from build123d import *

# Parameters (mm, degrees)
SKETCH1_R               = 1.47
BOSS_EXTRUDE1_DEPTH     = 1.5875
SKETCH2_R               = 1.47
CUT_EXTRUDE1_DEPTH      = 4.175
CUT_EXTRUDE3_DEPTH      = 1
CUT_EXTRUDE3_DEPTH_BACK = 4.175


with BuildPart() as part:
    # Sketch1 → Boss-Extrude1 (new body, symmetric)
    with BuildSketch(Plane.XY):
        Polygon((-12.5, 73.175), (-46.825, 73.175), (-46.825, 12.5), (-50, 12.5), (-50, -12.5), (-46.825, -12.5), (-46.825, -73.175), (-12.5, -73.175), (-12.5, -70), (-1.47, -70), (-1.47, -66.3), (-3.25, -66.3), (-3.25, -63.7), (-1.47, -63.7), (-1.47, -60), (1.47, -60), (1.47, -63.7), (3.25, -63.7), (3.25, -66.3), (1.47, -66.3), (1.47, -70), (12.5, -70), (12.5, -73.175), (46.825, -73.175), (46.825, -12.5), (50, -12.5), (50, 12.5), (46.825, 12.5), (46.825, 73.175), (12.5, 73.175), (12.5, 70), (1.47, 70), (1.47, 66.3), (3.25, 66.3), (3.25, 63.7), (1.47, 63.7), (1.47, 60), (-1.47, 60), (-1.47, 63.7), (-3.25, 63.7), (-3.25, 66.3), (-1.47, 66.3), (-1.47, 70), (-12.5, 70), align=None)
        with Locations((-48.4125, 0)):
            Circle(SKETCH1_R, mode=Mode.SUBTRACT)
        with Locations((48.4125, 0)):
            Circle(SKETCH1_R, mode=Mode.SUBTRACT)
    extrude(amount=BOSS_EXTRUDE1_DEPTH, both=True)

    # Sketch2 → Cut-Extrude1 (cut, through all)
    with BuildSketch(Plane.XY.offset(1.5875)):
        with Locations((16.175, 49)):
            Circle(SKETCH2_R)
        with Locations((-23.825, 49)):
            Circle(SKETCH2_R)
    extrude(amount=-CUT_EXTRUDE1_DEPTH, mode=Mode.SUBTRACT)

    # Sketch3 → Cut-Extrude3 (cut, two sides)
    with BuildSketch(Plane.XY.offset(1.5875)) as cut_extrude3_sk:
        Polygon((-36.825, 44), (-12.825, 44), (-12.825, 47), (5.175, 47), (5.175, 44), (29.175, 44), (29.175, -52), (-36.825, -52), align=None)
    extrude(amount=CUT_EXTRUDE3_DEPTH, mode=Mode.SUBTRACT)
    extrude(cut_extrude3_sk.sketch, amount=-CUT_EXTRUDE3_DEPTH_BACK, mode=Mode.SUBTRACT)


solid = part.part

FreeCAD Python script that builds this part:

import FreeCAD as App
import Part
import Sketcher

V = App.Vector

doc = App.newDocument("Part")
body = doc.addObject("PartDesign::Body", "Body")

# Sketch on XY plane
sketch1 = body.newObject("Sketcher::SketchObject", "Sketch")
sketch1.AttachmentSupport = (doc.getObject("XY_Plane"), [""])
sketch1.MapMode = "FlatFace"
sketch1.addGeometry(Part.LineSegment(V(-12.5, 73.2, 0), V(-46.8, 73.2, 0)), False)
sketch1.addGeometry(Part.LineSegment(V(-46.8, 73.2, 0), V(-46.8, 12.5, 0)), False)
sketch1.addGeometry(Part.LineSegment(V(-46.8, 12.5, 0), V(-50, 12.5, 0)), False)
sketch1.addGeometry(Part.LineSegment(V(-50, 12.5, 0), V(-50, -12.5, 0)), False)
sketch1.addGeometry(Part.LineSegment(V(-50, -12.5, 0), V(-46.8, -12.5, 0)), False)
sketch1.addGeometry(Part.LineSegment(V(-46.8, -12.5, 0), V(-46.8, -73.2, 0)), False)
sketch1.addGeometry(Part.LineSegment(V(-46.8, -73.2, 0), V(-12.5, -73.2, 0)), False)
sketch1.addGeometry(Part.LineSegment(V(-12.5, -73.2, 0), V(-12.5, -70, 0)), False)
sketch1.addGeometry(Part.LineSegment(V(-12.5, -70, 0), V(-1.5, -70, 0)), False)
sketch1.addGeometry(Part.LineSegment(V(-1.5, -70, 0), V(-1.5, -66.3, 0)), False)
sketch1.addGeometry(Part.LineSegment(V(-1.5, -66.3, 0), V(-3.2, -66.3, 0)), False)
sketch1.addGeometry(Part.LineSegment(V(-3.2, -66.3, 0), V(-3.2, -63.7, 0)), False)
sketch1.addGeometry(Part.LineSegment(V(-3.2, -63.7, 0), V(-1.5, -63.7, 0)), False)
sketch1.addGeometry(Part.LineSegment(V(-1.5, -63.7, 0), V(-1.5, -60, 0)), False)
sketch1.addGeometry(Part.LineSegment(V(-1.5, -60, 0), V(1.5, -60, 0)), False)
sketch1.addGeometry(Part.LineSegment(V(1.5, -60, 0), V(1.5, -63.7, 0)), False)
sketch1.addGeometry(Part.LineSegment(V(1.5, -63.7, 0), V(3.2, -63.7, 0)), False)
sketch1.addGeometry(Part.LineSegment(V(3.2, -63.7, 0), V(3.2, -66.3, 0)), False)
sketch1.addGeometry(Part.LineSegment(V(3.2, -66.3, 0), V(1.5, -66.3, 0)), False)
sketch1.addGeometry(Part.LineSegment(V(1.5, -66.3, 0), V(1.5, -70, 0)), False)
sketch1.addGeometry(Part.LineSegment(V(1.5, -70, 0), V(12.5, -70, 0)), False)
sketch1.addGeometry(Part.LineSegment(V(12.5, -70, 0), V(12.5, -73.2, 0)), False)
sketch1.addGeometry(Part.LineSegment(V(12.5, -73.2, 0), V(46.8, -73.2, 0)), False)
sketch1.addGeometry(Part.LineSegment(V(46.8, -73.2, 0), V(46.8, -12.5, 0)), False)
sketch1.addGeometry(Part.LineSegment(V(46.8, -12.5, 0), V(50, -12.5, 0)), False)
sketch1.addGeometry(Part.LineSegment(V(50, -12.5, 0), V(50, 12.5, 0)), False)
sketch1.addGeometry(Part.LineSegment(V(50, 12.5, 0), V(46.8, 12.5, 0)), False)
sketch1.addGeometry(Part.LineSegment(V(46.8, 12.5, 0), V(46.8, 73.2, 0)), False)
sketch1.addGeometry(Part.LineSegment(V(46.8, 73.2, 0), V(12.5, 73.2, 0)), False)
sketch1.addGeometry(Part.LineSegment(V(12.5, 73.2, 0), V(12.5, 70, 0)), False)
sketch1.addGeometry(Part.LineSegment(V(12.5, 70, 0), V(1.5, 70, 0)), False)
sketch1.addGeometry(Part.LineSegment(V(1.5, 70, 0), V(1.5, 66.3, 0)), False)
sketch1.addGeometry(Part.LineSegment(V(1.5, 66.3, 0), V(3.2, 66.3, 0)), False)
sketch1.addGeometry(Part.LineSegment(V(3.2, 66.3, 0), V(3.2, 63.7, 0)), False)
sketch1.addGeometry(Part.LineSegment(V(3.2, 63.7, 0), V(1.5, 63.7, 0)), False)
sketch1.addGeometry(Part.LineSegment(V(1.5, 63.7, 0), V(1.5, 60, 0)), False)
sketch1.addGeometry(Part.LineSegment(V(1.5, 60, 0), V(-1.5, 60, 0)), False)
sketch1.addGeometry(Part.LineSegment(V(-1.5, 60, 0), V(-1.5, 63.7, 0)), False)
sketch1.addGeometry(Part.LineSegment(V(-1.5, 63.7, 0), V(-3.2, 63.7, 0)), False)
sketch1.addGeometry(Part.LineSegment(V(-3.2, 63.7, 0), V(-3.2, 66.3, 0)), False)
sketch1.addGeometry(Part.LineSegment(V(-3.2, 66.3, 0), V(-1.5, 66.3, 0)), False)
sketch1.addGeometry(Part.LineSegment(V(-1.5, 66.3, 0), V(-1.5, 70, 0)), False)
sketch1.addGeometry(Part.LineSegment(V(-1.5, 70, 0), V(-12.5, 70, 0)), False)
sketch1.addGeometry(Part.LineSegment(V(-12.5, 70, 0), V(-12.5, 73.2, 0)), False)
sketch1.addGeometry(Part.Circle(V(-48.4, 0, 0), V(0, 0, 1), 1.5), False)
sketch1.addGeometry(Part.Circle(V(48.4, 0, 0), V(0, 0, 1), 1.5), False)
sketch1.addConstraint(Sketcher.Constraint("Coincident", 0, 2, 1, 1))
sketch1.addConstraint(Sketcher.Constraint("Coincident", 1, 2, 2, 1))
sketch1.addConstraint(Sketcher.Constraint("Coincident", 2, 2, 3, 1))
sketch1.addConstraint(Sketcher.Constraint("Coincident", 3, 2, 4, 1))
sketch1.addConstraint(Sketcher.Constraint("Coincident", 4, 2, 5, 1))
sketch1.addConstraint(Sketcher.Constraint("Coincident", 5, 2, 6, 1))
sketch1.addConstraint(Sketcher.Constraint("Coincident", 6, 2, 7, 1))
sketch1.addConstraint(Sketcher.Constraint("Coincident", 7, 2, 8, 1))
sketch1.addConstraint(Sketcher.Constraint("Coincident", 8, 2, 9, 1))
sketch1.addConstraint(Sketcher.Constraint("Coincident", 9, 2, 10, 1))
sketch1.addConstraint(Sketcher.Constraint("Coincident", 10, 2, 11, 1))
sketch1.addConstraint(Sketcher.Constraint("Coincident", 11, 2, 12, 1))
sketch1.addConstraint(Sketcher.Constraint("Coincident", 12, 2, 13, 1))
sketch1.addConstraint(Sketcher.Constraint("Coincident", 13, 2, 14, 1))
sketch1.addConstraint(Sketcher.Constraint("Coincident", 14, 2, 15, 1))
sketch1.addConstraint(Sketcher.Constraint("Coincident", 15, 2, 16, 1))
sketch1.addConstraint(Sketcher.Constraint("Coincident", 16, 2, 17, 1))
sketch1.addConstraint(Sketcher.Constraint("Coincident", 17, 2, 18, 1))
sketch1.addConstraint(Sketcher.Constraint("Coincident", 18, 2, 19, 1))
sketch1.addConstraint(Sketcher.Constraint("Coincident", 19, 2, 20, 1))
sketch1.addConstraint(Sketcher.Constraint("Coincident", 20, 2, 21, 1))
sketch1.addConstraint(Sketcher.Constraint("Coincident", 21, 2, 22, 1))
sketch1.addConstraint(Sketcher.Constraint("Coincident", 22, 2, 23, 1))
sketch1.addConstraint(Sketcher.Constraint("Coincident", 23, 2, 24, 1))
sketch1.addConstraint(Sketcher.Constraint("Coincident", 24, 2, 25, 1))
sketch1.addConstraint(Sketcher.Constraint("Coincident", 25, 2, 26, 1))
sketch1.addConstraint(Sketcher.Constraint("Coincident", 26, 2, 27, 1))
sketch1.addConstraint(Sketcher.Constraint("Coincident", 27, 2, 28, 1))
sketch1.addConstraint(Sketcher.Constraint("Coincident", 28, 2, 29, 1))
sketch1.addConstraint(Sketcher.Constraint("Coincident", 29, 2, 30, 1))
sketch1.addConstraint(Sketcher.Constraint("Coincident", 30, 2, 31, 1))
sketch1.addConstraint(Sketcher.Constraint("Coincident", 31, 2, 32, 1))
sketch1.addConstraint(Sketcher.Constraint("Coincident", 32, 2, 33, 1))
sketch1.addConstraint(Sketcher.Constraint("Coincident", 33, 2, 34, 1))
sketch1.addConstraint(Sketcher.Constraint("Coincident", 34, 2, 35, 1))
sketch1.addConstraint(Sketcher.Constraint("Coincident", 35, 2, 36, 1))
sketch1.addConstraint(Sketcher.Constraint("Coincident", 36, 2, 37, 1))
sketch1.addConstraint(Sketcher.Constraint("Coincident", 37, 2, 38, 1))
sketch1.addConstraint(Sketcher.Constraint("Coincident", 38, 2, 39, 1))
sketch1.addConstraint(Sketcher.Constraint("Coincident", 39, 2, 40, 1))
sketch1.addConstraint(Sketcher.Constraint("Coincident", 40, 2, 41, 1))
sketch1.addConstraint(Sketcher.Constraint("Coincident", 41, 2, 42, 1))
sketch1.addConstraint(Sketcher.Constraint("Coincident", 42, 2, 43, 1))
sketch1.addConstraint(Sketcher.Constraint("Coincident", 43, 2, 0, 1))
sketch1.addConstraint(Sketcher.Constraint("Horizontal", 0))
sketch1.addConstraint(Sketcher.Constraint("Vertical", 1))
sketch1.addConstraint(Sketcher.Constraint("Horizontal", 2))
sketch1.addConstraint(Sketcher.Constraint("Vertical", 3))
sketch1.addConstraint(Sketcher.Constraint("Horizontal", 4))
sketch1.addConstraint(Sketcher.Constraint("Vertical", 5))
sketch1.addConstraint(Sketcher.Constraint("Horizontal", 6))
sketch1.addConstraint(Sketcher.Constraint("Vertical", 7))
sketch1.addConstraint(Sketcher.Constraint("Horizontal", 8))
sketch1.addConstraint(Sketcher.Constraint("Vertical", 9))
sketch1.addConstraint(Sketcher.Constraint("Horizontal", 10))
sketch1.addConstraint(Sketcher.Constraint("Vertical", 11))
sketch1.addConstraint(Sketcher.Constraint("Horizontal", 12))
sketch1.addConstraint(Sketcher.Constraint("Vertical", 13))
sketch1.addConstraint(Sketcher.Constraint("Horizontal", 14))
sketch1.addConstraint(Sketcher.Constraint("Vertical", 15))
sketch1.addConstraint(Sketcher.Constraint("Horizontal", 16))
sketch1.addConstraint(Sketcher.Constraint("Vertical", 17))
sketch1.addConstraint(Sketcher.Constraint("Horizontal", 18))
sketch1.addConstraint(Sketcher.Constraint("Vertical", 19))
sketch1.addConstraint(Sketcher.Constraint("Horizontal", 20))
sketch1.addConstraint(Sketcher.Constraint("Vertical", 21))
sketch1.addConstraint(Sketcher.Constraint("Horizontal", 22))
sketch1.addConstraint(Sketcher.Constraint("Vertical", 23))
sketch1.addConstraint(Sketcher.Constraint("Horizontal", 24))
sketch1.addConstraint(Sketcher.Constraint("Vertical", 25))
sketch1.addConstraint(Sketcher.Constraint("Horizontal", 26))
sketch1.addConstraint(Sketcher.Constraint("Vertical", 27))
sketch1.addConstraint(Sketcher.Constraint("Horizontal", 28))
sketch1.addConstraint(Sketcher.Constraint("Vertical", 29))
sketch1.addConstraint(Sketcher.Constraint("Horizontal", 30))
sketch1.addConstraint(Sketcher.Constraint("Vertical", 31))
sketch1.addConstraint(Sketcher.Constraint("Horizontal", 32))
sketch1.addConstraint(Sketcher.Constraint("Vertical", 33))
sketch1.addConstraint(Sketcher.Constraint("Horizontal", 34))
sketch1.addConstraint(Sketcher.Constraint("Vertical", 35))
sketch1.addConstraint(Sketcher.Constraint("Horizontal", 36))
sketch1.addConstraint(Sketcher.Constraint("Vertical", 37))
sketch1.addConstraint(Sketcher.Constraint("Horizontal", 38))
sketch1.addConstraint(Sketcher.Constraint("Vertical", 39))
sketch1.addConstraint(Sketcher.Constraint("Horizontal", 40))
sketch1.addConstraint(Sketcher.Constraint("Vertical", 41))
sketch1.addConstraint(Sketcher.Constraint("Horizontal", 42))
sketch1.addConstraint(Sketcher.Constraint("Vertical", 43))
sketch1.addConstraint(Sketcher.Constraint("Equal", 44, 45))
sketch1.addConstraint(Sketcher.Constraint("Symmetric", 44, 3, 45, 3, -1, 1))
sketch1.addConstraint(Sketcher.Constraint("Symmetric", 0, 2, 22, 2, -1, 1))
sketch1.addConstraint(Sketcher.Constraint("Symmetric", 2, 2, 24, 2, -1, 1))
sketch1.addConstraint(Sketcher.Constraint("Symmetric", 4, 2, 26, 2, -1, 1))
sketch1.addConstraint(Sketcher.Constraint("Symmetric", 6, 2, 28, 2, -1, 1))
sketch1.addConstraint(Sketcher.Constraint("Symmetric", 8, 2, 30, 2, -1, 1))
sketch1.addConstraint(Sketcher.Constraint("Symmetric", 10, 2, 32, 2, -1, 1))
sketch1.addConstraint(Sketcher.Constraint("Symmetric", 12, 2, 34, 2, -1, 1))
sketch1.addConstraint(Sketcher.Constraint("Symmetric", 14, 2, 36, 2, -1, 1))
sketch1.addConstraint(Sketcher.Constraint("Symmetric", 16, 2, 38, 2, -1, 1))
sketch1.addConstraint(Sketcher.Constraint("Symmetric", 18, 2, 40, 2, -1, 1))
sketch1.addConstraint(Sketcher.Constraint("Symmetric", 20, 2, 42, 2, -1, 1))
sketch1.addConstraint(Sketcher.Constraint("Symmetric", 12, 2, 15, 2, -2))
sketch1.addConstraint(Sketcher.Constraint("Symmetric", 10, 2, 17, 2, -2))
sketch1.addConstraint(Sketcher.Constraint("Symmetric", 8, 2, 19, 2, -2))
sketch1.addConstraint(Sketcher.Constraint("Symmetric", 6, 2, 21, 2, -2))
sketch1.addConstraint(Sketcher.Constraint("Symmetric", 4, 2, 23, 2, -2))
sketch1.addConstraint(Sketcher.Constraint("PointOnObject", 44, 3, -1))
sketch1.addConstraint(Sketcher.Constraint("Vertical", 9, 2, 12, 2))
sketch1.addConstraint(Sketcher.Constraint("Equal", 26, 7))
sketch1.addConstraint(Sketcher.Constraint("Equal", 9, 13))
sketch1.addConstraint(Sketcher.Constraint("Diameter", 44, 2.94))
sketch1.addConstraint(Sketcher.Constraint("DistanceY", 3, 2, 3, 1, 25.0))
sketch1.addConstraint(Sketcher.Constraint("DistanceY", 9, 1, 9, 2, 3.7))
sketch1.addConstraint(Sketcher.Constraint("DistanceY", 11, 1, 11, 2, 2.6))
sketch1.addConstraint(Sketcher.Constraint("DistanceX", 2, 2, -1, 1, 50.0))
sketch1.addConstraint(Sketcher.Constraint("DistanceY", 7, 2, -1, 1, 70.0))
sketch1.addConstraint(Sketcher.Constraint("DistanceX", 8, 1, 8, 2, 11.03))
sketch1.addConstraint(Sketcher.Constraint("DistanceX", 10, 2, 10, 1, 1.78))
sketch1.addConstraint(Sketcher.Constraint("DistanceX", 14, 1, 14, 2, 2.94))
sketch1.addConstraint(Sketcher.Constraint("DistanceX", 0, 2, 0, 1, 34.325))
sketch1.addConstraint(Sketcher.Constraint("DistanceX", 44, 3, 45, 3, 96.825))
pad1 = body.newObject("PartDesign::Pad", "Pad")
pad1.Profile = sketch1
pad1.Length = 3.175
pad1.Midplane = True

# Sketch on XY plane
sketch2 = body.newObject("Sketcher::SketchObject", "Sketch001")
sketch2.AttachmentSupport = (doc.getObject("XY_Plane"), [""])
sketch2.MapMode = "FlatFace"
sketch2.AttachmentOffset = App.Placement(V(0, 0, 1.5875), App.Rotation())
sketch2.addGeometry(Part.Circle(V(16.2, 49, 0), V(0, 0, 1), 1.5), False)
sketch2.addGeometry(Part.Circle(V(-23.8, 49, 0), V(0, 0, 1), 1.5), False)
sketch2.addConstraint(Sketcher.Constraint("Equal", 0, 1))
sketch2.addConstraint(Sketcher.Constraint("Horizontal", 0, 3, 1, 3))
sketch2.addConstraint(Sketcher.Constraint("Diameter", 0, 2.94))
sketch2.addConstraint(Sketcher.Constraint("DistanceY", -1, 1, 0, 3, 49.0))
sketch2.addConstraint(Sketcher.Constraint("DistanceX", 1, 3, 0, 3, 40.0))
sketch2.addConstraint(Sketcher.Constraint("DistanceX", -1, 1, 0, 3, 16.175))
pocket1 = body.newObject("PartDesign::Pocket", "Pocket")
pocket1.Profile = sketch2
pocket1.Type = "ThroughAll"

# Sketch on XY plane
sketch3 = body.newObject("Sketcher::SketchObject", "Sketch002")
sketch3.AttachmentSupport = (doc.getObject("XY_Plane"), [""])
sketch3.MapMode = "FlatFace"
sketch3.AttachmentOffset = App.Placement(V(0, 0, 1.5875), App.Rotation())
sketch3.addGeometry(Part.LineSegment(V(-12.8, 44, 0), V(-36.8, 44, 0)), False)
sketch3.addGeometry(Part.LineSegment(V(-36.8, 44, 0), V(-36.8, -52, 0)), False)
sketch3.addGeometry(Part.LineSegment(V(-36.8, -52, 0), V(29.2, -52, 0)), False)
sketch3.addGeometry(Part.LineSegment(V(29.2, -52, 0), V(29.2, 44, 0)), False)
sketch3.addGeometry(Part.LineSegment(V(29.2, 44, 0), V(5.2, 44, 0)), False)
sketch3.addGeometry(Part.LineSegment(V(5.2, 44, 0), V(5.2, 47, 0)), False)
sketch3.addGeometry(Part.LineSegment(V(5.2, 47, 0), V(-12.8, 47, 0)), False)
sketch3.addGeometry(Part.LineSegment(V(-12.8, 47, 0), V(-12.8, 44, 0)), False)
sketch3.addConstraint(Sketcher.Constraint("Coincident", 0, 2, 1, 1))
sketch3.addConstraint(Sketcher.Constraint("Coincident", 1, 2, 2, 1))
sketch3.addConstraint(Sketcher.Constraint("Coincident", 2, 2, 3, 1))
sketch3.addConstraint(Sketcher.Constraint("Coincident", 3, 2, 4, 1))
sketch3.addConstraint(Sketcher.Constraint("Coincident", 4, 2, 5, 1))
sketch3.addConstraint(Sketcher.Constraint("Coincident", 5, 2, 6, 1))
sketch3.addConstraint(Sketcher.Constraint("Coincident", 6, 2, 7, 1))
sketch3.addConstraint(Sketcher.Constraint("Coincident", 7, 2, 0, 1))
sketch3.addConstraint(Sketcher.Constraint("Horizontal", 0))
sketch3.addConstraint(Sketcher.Constraint("Vertical", 1))
sketch3.addConstraint(Sketcher.Constraint("Horizontal", 2))
sketch3.addConstraint(Sketcher.Constraint("Vertical", 3))
sketch3.addConstraint(Sketcher.Constraint("Horizontal", 4))
sketch3.addConstraint(Sketcher.Constraint("Vertical", 5))
sketch3.addConstraint(Sketcher.Constraint("Horizontal", 6))
sketch3.addConstraint(Sketcher.Constraint("Vertical", 7))
sketch3.addConstraint(Sketcher.Constraint("Horizontal", 0, 2, 3, 2))
sketch3.addConstraint(Sketcher.Constraint("Equal", 0, 4))
sketch3.addConstraint(Sketcher.Constraint("DistanceX", 0, 2, 0, 1, 24.0))
sketch3.addConstraint(Sketcher.Constraint("DistanceX", 2, 1, 2, 2, 66.0))
sketch3.addConstraint(Sketcher.Constraint("DistanceY", 1, 2, 1, 1, 96.0))
sketch3.addConstraint(Sketcher.Constraint("DistanceY", 5, 1, 5, 2, 3.0))
sketch3.addConstraint(Sketcher.Constraint("DistanceY", -1, 1, 0, 2, 44.0))
sketch3.addConstraint(Sketcher.Constraint("DistanceX", 0, 2, -1, 1, 36.825))
pocket2 = body.newObject("PartDesign::Pocket", "Pocket001")
pocket2.Profile = sketch3
pocket2.Type = "ThroughAll"
pocket2.Midplane = True

doc.recompute()
